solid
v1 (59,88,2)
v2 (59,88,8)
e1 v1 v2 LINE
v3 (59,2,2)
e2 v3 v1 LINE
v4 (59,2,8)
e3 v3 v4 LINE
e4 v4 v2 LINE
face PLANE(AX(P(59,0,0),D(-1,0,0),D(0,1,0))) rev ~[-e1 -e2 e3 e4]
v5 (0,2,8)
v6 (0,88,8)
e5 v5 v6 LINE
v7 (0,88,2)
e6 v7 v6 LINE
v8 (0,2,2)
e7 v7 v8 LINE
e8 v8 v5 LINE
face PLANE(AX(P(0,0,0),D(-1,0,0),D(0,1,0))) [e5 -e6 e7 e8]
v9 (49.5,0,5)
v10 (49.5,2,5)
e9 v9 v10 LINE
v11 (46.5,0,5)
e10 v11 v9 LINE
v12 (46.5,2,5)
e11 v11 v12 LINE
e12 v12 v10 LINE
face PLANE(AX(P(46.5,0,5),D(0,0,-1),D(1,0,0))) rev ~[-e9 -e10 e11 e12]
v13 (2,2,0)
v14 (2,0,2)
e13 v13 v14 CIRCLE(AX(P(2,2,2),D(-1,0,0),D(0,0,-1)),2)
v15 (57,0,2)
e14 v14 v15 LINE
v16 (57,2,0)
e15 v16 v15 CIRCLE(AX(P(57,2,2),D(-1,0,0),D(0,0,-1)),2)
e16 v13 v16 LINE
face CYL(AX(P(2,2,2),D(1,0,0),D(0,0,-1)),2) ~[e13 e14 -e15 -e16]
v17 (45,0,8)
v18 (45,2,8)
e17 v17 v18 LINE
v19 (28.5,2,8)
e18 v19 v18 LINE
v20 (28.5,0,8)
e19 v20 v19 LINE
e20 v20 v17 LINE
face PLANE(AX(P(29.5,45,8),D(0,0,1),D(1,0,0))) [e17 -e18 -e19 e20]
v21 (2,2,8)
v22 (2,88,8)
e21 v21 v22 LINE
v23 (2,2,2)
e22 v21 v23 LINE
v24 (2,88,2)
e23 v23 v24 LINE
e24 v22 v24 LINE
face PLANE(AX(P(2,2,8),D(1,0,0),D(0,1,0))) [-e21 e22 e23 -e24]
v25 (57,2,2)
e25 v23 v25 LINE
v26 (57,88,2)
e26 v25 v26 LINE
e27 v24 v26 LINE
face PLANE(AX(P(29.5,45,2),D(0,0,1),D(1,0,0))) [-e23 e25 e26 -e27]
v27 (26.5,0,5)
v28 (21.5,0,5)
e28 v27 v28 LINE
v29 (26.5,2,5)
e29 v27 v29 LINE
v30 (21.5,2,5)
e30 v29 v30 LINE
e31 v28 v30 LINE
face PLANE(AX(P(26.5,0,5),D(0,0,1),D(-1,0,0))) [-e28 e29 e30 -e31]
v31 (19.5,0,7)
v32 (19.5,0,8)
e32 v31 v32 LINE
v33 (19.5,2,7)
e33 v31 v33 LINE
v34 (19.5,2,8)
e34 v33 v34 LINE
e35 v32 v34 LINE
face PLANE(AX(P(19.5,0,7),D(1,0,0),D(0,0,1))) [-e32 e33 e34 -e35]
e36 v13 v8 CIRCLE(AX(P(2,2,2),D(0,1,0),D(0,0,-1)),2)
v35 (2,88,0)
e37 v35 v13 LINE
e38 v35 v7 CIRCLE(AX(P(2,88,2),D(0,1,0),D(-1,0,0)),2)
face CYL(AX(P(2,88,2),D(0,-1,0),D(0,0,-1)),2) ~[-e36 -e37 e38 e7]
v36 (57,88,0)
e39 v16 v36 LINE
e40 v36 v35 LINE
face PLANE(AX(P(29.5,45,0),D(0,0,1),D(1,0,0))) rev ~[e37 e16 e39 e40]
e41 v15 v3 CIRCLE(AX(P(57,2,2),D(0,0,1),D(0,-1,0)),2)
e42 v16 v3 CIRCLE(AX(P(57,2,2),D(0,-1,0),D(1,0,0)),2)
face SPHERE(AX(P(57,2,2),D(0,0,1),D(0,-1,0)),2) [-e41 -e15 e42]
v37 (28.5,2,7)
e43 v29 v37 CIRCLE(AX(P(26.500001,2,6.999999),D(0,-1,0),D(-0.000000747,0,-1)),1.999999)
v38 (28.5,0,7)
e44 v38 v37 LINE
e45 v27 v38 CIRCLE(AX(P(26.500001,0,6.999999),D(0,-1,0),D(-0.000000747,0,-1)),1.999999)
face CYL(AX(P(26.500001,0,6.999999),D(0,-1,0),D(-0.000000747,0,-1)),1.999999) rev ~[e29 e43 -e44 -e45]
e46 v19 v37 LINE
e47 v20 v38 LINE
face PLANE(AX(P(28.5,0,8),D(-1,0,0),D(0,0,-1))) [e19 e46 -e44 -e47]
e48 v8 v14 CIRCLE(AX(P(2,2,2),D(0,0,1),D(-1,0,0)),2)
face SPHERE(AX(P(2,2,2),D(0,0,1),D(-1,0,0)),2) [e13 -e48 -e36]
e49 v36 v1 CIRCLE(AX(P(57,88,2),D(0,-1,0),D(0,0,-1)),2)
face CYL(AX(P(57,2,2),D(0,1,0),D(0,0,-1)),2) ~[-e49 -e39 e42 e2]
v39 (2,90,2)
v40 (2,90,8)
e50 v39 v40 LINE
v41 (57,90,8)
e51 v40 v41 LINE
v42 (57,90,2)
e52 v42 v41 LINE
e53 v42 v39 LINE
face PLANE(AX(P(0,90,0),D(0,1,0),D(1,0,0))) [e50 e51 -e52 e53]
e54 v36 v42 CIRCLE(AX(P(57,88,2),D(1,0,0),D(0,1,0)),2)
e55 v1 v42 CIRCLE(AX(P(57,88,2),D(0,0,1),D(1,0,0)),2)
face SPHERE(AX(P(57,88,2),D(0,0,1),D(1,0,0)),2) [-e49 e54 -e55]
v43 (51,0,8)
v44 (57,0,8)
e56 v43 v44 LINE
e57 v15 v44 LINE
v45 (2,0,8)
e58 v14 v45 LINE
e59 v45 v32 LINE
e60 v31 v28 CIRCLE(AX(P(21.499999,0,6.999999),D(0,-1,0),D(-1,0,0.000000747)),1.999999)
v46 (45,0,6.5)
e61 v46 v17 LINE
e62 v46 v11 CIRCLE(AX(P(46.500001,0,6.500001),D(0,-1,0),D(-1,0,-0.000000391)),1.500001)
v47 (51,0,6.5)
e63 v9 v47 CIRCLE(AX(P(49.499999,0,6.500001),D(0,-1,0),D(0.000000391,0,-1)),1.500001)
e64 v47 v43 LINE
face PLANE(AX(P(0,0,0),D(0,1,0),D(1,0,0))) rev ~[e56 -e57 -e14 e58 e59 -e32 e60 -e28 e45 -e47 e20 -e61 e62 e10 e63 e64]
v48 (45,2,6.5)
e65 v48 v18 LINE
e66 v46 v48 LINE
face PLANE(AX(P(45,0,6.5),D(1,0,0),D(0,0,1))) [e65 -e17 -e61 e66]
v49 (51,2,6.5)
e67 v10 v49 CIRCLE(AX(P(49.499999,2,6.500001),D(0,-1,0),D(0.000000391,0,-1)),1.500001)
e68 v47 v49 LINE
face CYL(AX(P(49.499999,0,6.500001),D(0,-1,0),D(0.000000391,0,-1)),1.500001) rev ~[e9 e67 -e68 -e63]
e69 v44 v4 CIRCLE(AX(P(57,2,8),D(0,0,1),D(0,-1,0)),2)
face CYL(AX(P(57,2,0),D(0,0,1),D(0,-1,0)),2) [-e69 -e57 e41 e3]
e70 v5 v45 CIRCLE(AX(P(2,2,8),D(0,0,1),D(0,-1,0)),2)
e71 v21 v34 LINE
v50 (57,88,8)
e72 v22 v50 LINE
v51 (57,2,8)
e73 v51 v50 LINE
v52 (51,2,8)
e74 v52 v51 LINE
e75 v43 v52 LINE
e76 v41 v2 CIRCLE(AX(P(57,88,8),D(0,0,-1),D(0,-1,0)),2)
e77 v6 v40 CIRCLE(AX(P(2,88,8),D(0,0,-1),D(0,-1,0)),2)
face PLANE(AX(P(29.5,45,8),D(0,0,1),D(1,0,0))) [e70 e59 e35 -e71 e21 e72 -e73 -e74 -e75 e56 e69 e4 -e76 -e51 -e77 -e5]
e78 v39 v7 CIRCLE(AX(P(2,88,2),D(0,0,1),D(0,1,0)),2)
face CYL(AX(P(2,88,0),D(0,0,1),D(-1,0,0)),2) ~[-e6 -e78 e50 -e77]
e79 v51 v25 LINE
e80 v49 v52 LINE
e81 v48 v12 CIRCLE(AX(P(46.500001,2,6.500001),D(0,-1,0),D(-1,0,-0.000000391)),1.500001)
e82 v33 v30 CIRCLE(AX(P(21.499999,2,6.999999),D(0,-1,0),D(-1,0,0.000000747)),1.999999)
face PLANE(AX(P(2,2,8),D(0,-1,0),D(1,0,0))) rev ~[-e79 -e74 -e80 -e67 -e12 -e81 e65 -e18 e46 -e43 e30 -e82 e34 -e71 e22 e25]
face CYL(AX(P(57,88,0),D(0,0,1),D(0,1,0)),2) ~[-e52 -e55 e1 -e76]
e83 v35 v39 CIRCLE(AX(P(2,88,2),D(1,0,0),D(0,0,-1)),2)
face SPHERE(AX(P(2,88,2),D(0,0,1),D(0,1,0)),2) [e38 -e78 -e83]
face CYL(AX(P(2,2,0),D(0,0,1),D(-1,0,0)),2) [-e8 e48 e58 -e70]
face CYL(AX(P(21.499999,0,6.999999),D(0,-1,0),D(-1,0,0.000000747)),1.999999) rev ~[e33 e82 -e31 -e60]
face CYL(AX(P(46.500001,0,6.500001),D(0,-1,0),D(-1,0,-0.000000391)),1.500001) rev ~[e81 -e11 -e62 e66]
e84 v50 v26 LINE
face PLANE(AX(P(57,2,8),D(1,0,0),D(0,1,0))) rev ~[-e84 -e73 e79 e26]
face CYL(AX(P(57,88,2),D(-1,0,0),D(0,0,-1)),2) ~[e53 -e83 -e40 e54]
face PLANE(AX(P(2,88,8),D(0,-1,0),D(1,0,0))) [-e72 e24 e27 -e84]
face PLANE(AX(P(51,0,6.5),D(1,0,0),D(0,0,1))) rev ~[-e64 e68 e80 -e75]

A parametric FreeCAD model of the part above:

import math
import FreeCAD as App
import Part
import Sketcher

V = App.Vector


def edges_at(feature, points):
    """Names of the edges that pass closest to the given points."""
    edges = feature.Shape.Edges
    near = lambda p: min(range(len(edges)), key=lambda i: edges[i].distToShape(Part.Vertex(*p))[0])
    return sorted({f"Edge{near(p) + 1}" for p in points})


def add_polygon(sketch, points):
    """Adds a closed chain of lines whose ends are joined by coincident constraints."""
    first, n = sketch.GeometryCount, len(points)
    for a, b in zip(points, points[1:] + points[:1]):
        sketch.addGeometry(Part.LineSegment(App.Vector(*a, 0), App.Vector(*b, 0)), False)
    for i in range(n):
        sketch.addConstraint(Sketcher.Constraint("Coincident", first + i, 2, first + (i + 1) % n, 1))

doc = App.newDocument("Part")
body = doc.addObject("PartDesign::Body", "Body")

# Sketch on XY plane
sketch1 = doc.addObject("Sketcher::SketchObject", "Sketch")
body.addObject(sketch1)
sketch1.AttachmentSupport = (doc.XY_Plane, [""])
sketch1.MapMode = "FlatFace"
add_polygon(sketch1, [(0, 90), (0, 0), (59, 0), (59, 90)])  # lines 0-3
sketch1.addConstraint([
    Sketcher.Constraint("Vertical", 0),
    Sketcher.Constraint("Horizontal", 1),
    Sketcher.Constraint("Vertical", 2),
    Sketcher.Constraint("Horizontal", 3),
    Sketcher.Constraint("Coincident", 0, 2, -1, 1),
    Sketcher.Constraint("DistanceX", 1, 1, 1, 2, 59.0),
    Sketcher.Constraint("DistanceY", 0, 2, 0, 1, 90.0),
])
pad1 = doc.addObject("PartDesign::Pad", "Pad")
body.addObject(pad1)
pad1.Profile = sketch1
pad1.Length = 8

# Sketch on XY plane
sketch2 = doc.addObject("Sketcher::SketchObject", "Sketch001")
body.addObject(sketch2)
sketch2.AttachmentSupport = (doc.XY_Plane, [""])
sketch2.MapMode = "FlatFace"
sketch2.AttachmentOffset = App.Placement(V(0, 0, 8), App.Rotation())
add_polygon(sketch2, [(2, 88), (2, 2), (57, 2), (57, 88)])  # lines 0-3
sketch2.addConstraint([
    Sketcher.Constraint("Vertical", 0),
    Sketcher.Constraint("Horizontal", 1),
    Sketcher.Constraint("Vertical", 2),
    Sketcher.Constraint("Horizontal", 3),
    Sketcher.Constraint("DistanceX", 1, 1, 1, 2, 55.0),
    Sketcher.Constraint("DistanceY", 0, 2, 0, 1, 86.0),
    Sketcher.Constraint("DistanceX", -1, 1, 0, 2, 2.0),
    Sketcher.Constraint("DistanceY", -1, 1, 0, 2, 2.0),
])
pocket1 = doc.addObject("PartDesign::Pocket", "Pocket")
body.addObject(pocket1)
pocket1.Profile = sketch2
pocket1.Length = 6

# Sketch on XZ plane
sketch3 = doc.addObject("Sketcher::SketchObject", "Sketch002")
body.addObject(sketch3)
sketch3.AttachmentSupport = (doc.XZ_Plane, [""])
sketch3.MapMode = "FlatFace"
sketch3.addGeometry([
    Part.LineSegment(V(28.5, 7, 0), V(28.5, 8, 0)),  # 0
    Part.LineSegment(V(28.5, 8, 0), V(19.5, 8, 0)),  # 1
    Part.LineSegment(V(19.5, 8, 0), V(19.5, 7, 0)),  # 2
    Part.ArcOfCircle(Part.Circle(V(21.5, 7, 0), V(0, 0, 1), 2), math.radians(180), math.radians(270)),  # 3
    Part.LineSegment(V(21.5, 5, 0), V(26.5, 5, 0)),  # 4
    Part.ArcOfCircle(Part.Circle(V(26.5, 7, 0), V(0, 0, 1), 2), math.radians(-90), math.radians(0)),  # 5
    Part.ArcOfCircle(Part.Circle(V(46.5, 6.5, 0), V(0, 0, 1), 1.5), math.radians(-180), math.radians(-90)),  # 6
    Part.LineSegment(V(46.5, 5, 0), V(49.5, 5, 0)),  # 7
    Part.ArcOfCircle(Part.Circle(V(49.5, 6.5, 0), V(0, 0, 1), 1.5), math.radians(-90), math.radians(0)),  # 8
    Part.LineSegment(V(51, 6.5, 0), V(51, 8, 0)),  # 9
    Part.LineSegment(V(51, 8, 0), V(45, 8, 0)),  # 10
    Part.LineSegment(V(45, 8, 0), V(45, 6.5, 0)),  # 11
], False)
sketch3.addConstraint([
    Sketcher.Constraint("Coincident", 0, 2, 1, 1),
    Sketcher.Constraint("Coincident", 1, 2, 2, 1),
    Sketcher.Constraint("Tangent", 2, 2, 3, 1),
    Sketcher.Constraint("Tangent", 3, 2, 4, 1),
    Sketcher.Constraint("Tangent", 4, 2, 5, 1),
    Sketcher.Constraint("Tangent", 5, 2, 0, 1),
    Sketcher.Constraint("Tangent", 6, 2, 7, 1),
    Sketcher.Constraint("Tangent", 7, 2, 8, 1),
    Sketcher.Constraint("Tangent", 8, 2, 9, 1),
    Sketcher.Constraint("Coincident", 9, 2, 10, 1),
    Sketcher.Constraint("Coincident", 10, 2, 11, 1),
    Sketcher.Constraint("Tangent", 11, 2, 6, 1),
    Sketcher.Constraint("Vertical", 0),
    Sketcher.Constraint("Horizontal", 1),
    Sketcher.Constraint("Vertical", 2),
    Sketcher.Constraint("Horizontal", 4),
    Sketcher.Constraint("Horizontal", 7),
    Sketcher.Constraint("Vertical", 9),
    Sketcher.Constraint("Horizontal", 10),
    Sketcher.Constraint("Vertical", 11),
    Sketcher.Constraint("Equal", 3, 5),
    Sketcher.Constraint("Equal", 6, 8),
    Sketcher.Constraint("Horizontal", 4, 2, 6, 2),
    Sketcher.Constraint("Horizontal", 1, 2, 9, 2),
    Sketcher.Constraint("Radius", 3, 1.999999),
    Sketcher.Constraint("Radius", 6, 1.500001),
    Sketcher.Constraint("DistanceX", 1, 2, 1, 1, 9.0),
    Sketcher.Constraint("DistanceX", 7, 1, 7, 2, 3.0),
    Sketcher.Constraint("DistanceY", 0, 1, 0, 2, 1.0),
    Sketcher.Constraint("DistanceY", -1, 1, 3, 3, 6.999999),
    Sketcher.Constraint("DistanceX", -1, 1, 8, 2, 51.0),
    Sketcher.Constraint("DistanceX", 5, 3, 6, 3, 19.999999),
])
pocket2 = doc.addObject("PartDesign::Pocket", "Pocket001")
body.addObject(pocket2)
pocket2.Profile = sketch3
pocket2.Length = 2
doc.recompute()

fillet = doc.addObject("PartDesign::Fillet", "Fillet")
body.addObject(fillet)
fillet.Base = (pocket2, edges_at(pocket2, [
    (59, 90, 4),
    (0, 90, 4),
    (0, 0, 4),
    (59, 0, 4),
]))
fillet.Radius = 2
doc.recompute()

fillet2 = doc.addObject("PartDesign::Fillet", "Fillet001")
body.addObject(fillet2)
fillet2.Base = (fillet, edges_at(fillet, [(29.5, 0, 0)]))
fillet2.Radius = 2

doc.recompute()
